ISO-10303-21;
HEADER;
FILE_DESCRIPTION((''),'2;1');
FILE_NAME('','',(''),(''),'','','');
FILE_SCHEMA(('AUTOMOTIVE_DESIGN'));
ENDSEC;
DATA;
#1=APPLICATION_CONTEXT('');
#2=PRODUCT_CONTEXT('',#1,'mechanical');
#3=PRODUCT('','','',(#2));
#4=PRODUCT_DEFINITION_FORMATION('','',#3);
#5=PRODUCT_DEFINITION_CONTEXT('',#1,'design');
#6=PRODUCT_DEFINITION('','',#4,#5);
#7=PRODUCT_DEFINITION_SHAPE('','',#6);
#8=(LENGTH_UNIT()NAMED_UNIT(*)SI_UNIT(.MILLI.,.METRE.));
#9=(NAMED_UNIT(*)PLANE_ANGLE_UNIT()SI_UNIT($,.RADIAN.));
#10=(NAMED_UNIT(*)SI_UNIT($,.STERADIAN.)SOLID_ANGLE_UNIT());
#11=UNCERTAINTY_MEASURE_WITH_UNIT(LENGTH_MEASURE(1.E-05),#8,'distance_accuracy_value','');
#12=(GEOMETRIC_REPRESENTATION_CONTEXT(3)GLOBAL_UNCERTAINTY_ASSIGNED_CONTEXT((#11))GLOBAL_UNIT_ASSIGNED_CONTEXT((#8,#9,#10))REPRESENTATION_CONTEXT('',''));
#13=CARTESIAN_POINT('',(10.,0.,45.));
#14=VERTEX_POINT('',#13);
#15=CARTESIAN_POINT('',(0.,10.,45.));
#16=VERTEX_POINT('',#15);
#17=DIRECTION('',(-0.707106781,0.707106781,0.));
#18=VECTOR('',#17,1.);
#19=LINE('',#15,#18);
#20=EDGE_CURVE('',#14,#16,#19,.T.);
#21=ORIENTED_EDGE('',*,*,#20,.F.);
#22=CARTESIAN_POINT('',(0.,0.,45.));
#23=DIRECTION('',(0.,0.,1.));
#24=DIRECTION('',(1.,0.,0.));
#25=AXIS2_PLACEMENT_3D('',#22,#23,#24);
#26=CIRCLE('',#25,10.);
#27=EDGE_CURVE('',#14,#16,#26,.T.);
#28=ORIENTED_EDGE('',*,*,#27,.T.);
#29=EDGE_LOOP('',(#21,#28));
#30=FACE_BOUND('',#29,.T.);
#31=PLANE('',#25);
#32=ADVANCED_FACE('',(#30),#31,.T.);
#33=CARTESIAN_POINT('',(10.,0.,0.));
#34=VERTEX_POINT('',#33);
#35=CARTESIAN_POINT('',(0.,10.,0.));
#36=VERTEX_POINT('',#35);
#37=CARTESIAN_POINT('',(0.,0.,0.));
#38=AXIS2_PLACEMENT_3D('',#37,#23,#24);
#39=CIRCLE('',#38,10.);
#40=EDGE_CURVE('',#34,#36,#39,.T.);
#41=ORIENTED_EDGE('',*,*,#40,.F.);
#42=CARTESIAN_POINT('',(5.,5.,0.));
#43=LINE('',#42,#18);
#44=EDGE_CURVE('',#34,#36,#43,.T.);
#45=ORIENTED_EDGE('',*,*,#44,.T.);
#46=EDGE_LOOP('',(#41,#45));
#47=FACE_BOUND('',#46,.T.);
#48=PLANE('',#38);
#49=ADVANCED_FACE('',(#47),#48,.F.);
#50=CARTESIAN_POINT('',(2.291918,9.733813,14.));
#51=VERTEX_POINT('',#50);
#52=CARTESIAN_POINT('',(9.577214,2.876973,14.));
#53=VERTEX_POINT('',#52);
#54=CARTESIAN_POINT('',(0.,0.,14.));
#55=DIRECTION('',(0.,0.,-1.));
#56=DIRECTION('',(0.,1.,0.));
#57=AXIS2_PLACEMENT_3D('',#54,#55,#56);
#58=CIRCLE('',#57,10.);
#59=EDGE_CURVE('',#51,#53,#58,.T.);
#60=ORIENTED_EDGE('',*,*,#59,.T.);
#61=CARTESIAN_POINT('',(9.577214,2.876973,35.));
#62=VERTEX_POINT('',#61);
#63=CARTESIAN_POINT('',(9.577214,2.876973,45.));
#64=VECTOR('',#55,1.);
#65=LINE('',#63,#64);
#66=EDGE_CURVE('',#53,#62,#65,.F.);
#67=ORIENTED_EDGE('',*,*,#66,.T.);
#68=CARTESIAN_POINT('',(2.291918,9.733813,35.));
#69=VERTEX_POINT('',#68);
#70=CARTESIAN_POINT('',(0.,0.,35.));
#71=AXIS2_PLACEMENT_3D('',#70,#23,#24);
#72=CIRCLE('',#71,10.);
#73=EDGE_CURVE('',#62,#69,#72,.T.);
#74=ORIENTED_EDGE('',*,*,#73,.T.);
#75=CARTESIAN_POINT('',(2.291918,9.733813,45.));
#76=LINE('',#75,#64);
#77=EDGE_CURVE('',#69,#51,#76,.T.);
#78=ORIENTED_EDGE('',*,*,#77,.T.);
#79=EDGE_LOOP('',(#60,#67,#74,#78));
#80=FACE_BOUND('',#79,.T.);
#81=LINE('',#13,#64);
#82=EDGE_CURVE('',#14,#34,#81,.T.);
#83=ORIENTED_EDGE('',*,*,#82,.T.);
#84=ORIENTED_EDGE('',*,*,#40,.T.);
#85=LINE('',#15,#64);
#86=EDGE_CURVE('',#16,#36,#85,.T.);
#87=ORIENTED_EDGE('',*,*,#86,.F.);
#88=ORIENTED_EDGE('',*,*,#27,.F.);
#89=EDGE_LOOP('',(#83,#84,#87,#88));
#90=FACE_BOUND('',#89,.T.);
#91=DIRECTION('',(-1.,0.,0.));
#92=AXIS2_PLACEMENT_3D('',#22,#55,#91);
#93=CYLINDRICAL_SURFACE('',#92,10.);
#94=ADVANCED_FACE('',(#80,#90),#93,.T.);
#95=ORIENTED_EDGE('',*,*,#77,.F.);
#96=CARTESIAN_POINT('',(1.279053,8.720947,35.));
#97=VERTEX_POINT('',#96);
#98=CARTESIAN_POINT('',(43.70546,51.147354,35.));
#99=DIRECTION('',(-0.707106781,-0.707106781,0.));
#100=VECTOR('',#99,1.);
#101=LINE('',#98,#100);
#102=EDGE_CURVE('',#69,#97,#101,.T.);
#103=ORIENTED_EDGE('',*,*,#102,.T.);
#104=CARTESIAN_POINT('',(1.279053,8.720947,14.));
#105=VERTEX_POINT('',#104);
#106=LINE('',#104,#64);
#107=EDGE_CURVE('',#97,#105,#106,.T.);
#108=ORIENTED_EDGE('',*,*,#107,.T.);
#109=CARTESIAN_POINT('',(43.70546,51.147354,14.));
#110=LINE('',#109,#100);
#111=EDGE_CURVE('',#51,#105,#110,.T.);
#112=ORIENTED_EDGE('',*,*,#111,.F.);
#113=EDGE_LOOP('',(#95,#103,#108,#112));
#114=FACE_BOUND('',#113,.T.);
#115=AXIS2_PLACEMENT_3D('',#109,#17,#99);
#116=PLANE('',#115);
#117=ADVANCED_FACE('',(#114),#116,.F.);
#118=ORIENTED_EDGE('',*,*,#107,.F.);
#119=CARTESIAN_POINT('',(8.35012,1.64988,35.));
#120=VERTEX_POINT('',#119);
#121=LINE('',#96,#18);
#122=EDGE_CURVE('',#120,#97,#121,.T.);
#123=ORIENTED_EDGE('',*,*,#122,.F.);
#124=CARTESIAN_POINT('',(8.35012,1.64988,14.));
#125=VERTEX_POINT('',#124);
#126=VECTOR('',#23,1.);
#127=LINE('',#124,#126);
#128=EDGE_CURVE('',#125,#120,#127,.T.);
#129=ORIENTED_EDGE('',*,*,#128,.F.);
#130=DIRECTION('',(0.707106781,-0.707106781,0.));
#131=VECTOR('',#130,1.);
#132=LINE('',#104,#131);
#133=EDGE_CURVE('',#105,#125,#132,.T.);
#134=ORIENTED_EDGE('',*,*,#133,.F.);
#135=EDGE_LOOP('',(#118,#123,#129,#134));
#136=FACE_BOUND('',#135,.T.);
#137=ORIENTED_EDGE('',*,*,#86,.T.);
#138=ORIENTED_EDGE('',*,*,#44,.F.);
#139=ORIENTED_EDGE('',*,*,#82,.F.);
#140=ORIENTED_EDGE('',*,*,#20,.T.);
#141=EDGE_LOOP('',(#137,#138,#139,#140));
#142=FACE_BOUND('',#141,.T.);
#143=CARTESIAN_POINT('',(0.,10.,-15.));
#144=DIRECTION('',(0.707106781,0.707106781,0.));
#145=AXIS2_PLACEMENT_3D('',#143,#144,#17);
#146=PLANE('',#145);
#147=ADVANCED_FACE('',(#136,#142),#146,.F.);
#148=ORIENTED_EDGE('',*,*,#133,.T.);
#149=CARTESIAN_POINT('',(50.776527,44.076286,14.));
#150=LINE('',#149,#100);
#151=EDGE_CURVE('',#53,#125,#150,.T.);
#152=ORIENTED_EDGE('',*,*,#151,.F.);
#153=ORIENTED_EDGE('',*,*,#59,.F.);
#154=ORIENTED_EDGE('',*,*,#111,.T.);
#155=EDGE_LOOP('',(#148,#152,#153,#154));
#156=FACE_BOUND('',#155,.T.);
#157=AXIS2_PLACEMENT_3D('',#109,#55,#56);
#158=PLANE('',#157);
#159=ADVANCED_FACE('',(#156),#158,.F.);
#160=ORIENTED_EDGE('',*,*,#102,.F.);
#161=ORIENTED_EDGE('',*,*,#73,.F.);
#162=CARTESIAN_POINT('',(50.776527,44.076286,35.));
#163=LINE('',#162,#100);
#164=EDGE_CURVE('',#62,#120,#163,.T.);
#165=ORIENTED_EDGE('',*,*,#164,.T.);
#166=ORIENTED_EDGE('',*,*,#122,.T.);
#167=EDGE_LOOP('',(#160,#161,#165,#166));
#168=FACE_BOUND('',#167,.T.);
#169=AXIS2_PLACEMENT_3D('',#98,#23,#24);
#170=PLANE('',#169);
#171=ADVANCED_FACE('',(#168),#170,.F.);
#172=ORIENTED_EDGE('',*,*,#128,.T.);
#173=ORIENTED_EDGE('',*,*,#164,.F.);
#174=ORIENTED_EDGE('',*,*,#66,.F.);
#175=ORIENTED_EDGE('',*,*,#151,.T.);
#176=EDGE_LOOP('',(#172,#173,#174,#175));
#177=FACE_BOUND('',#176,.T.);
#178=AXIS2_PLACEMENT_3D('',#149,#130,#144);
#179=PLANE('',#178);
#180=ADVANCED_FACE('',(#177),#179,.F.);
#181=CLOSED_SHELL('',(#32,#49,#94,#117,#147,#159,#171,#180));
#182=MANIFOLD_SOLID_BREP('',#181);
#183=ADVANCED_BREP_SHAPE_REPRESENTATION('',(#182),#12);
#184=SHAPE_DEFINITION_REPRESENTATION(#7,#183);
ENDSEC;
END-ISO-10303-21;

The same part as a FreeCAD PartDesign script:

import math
import FreeCAD as App
import Part
import Sketcher

V = App.Vector

doc = App.newDocument("Part")
params = doc.addObject("Spreadsheet::Sheet", "Params")
for row, (alias, value) in enumerate([
    ("sketch1_radius", "10 mm"),
    ("pad1_length", "45 mm"),
    ("sketch2_width", "10 mm"),
    ("pocket1_length", "60 mm"),
    ("sketch3_width", "21 mm"),
    ("sketch3_height", "10 mm"),
    ("pocket2_length", "60 mm"),
], start=1):
    params.set(f"A{row}", alias)
    params.set(f"B{row}", "=" + value)
    params.setAlias(f"B{row}", alias)

body = doc.addObject("PartDesign::Body", "Body")

# Sketch on XY plane
sketch1 = body.newObject("Sketcher::SketchObject", "Sketch")
sketch1.AttachmentSupport = (doc.getObject("XY_Plane"), [""])
sketch1.MapMode = "FlatFace"
sketch1.addGeometry([
    Part.LineSegment(V(0, 10, 0), V(0, 0, 0)),
    Part.LineSegment(V(0, 0, 0), V(10, 0, 0)),
    Part.ArcOfCircle(Part.Circle(V(0, 0, 0), V(0, 0, 1), 10), math.radians(0), math.radians(90)),
], False)
sketch1.addConstraint([
    Sketcher.Constraint("Coincident", 0, 2, 1, 1),
    Sketcher.Constraint("Coincident", 1, 2, 2, 1),
    Sketcher.Constraint("Coincident", 2, 2, 0, 1),
    Sketcher.Constraint("Vertical", 0),
    Sketcher.Constraint("Horizontal", 1),
    Sketcher.Constraint("Coincident", 2, 3, -1, 1),
    Sketcher.Constraint("Coincident", 0, 2, -1, 1),
    Sketcher.Constraint("Radius", 2, 10.0),
])
sketch1.setExpression("Constraints[7]", "Params.sketch1_radius")
pad1 = body.newObject("PartDesign::Pad", "Pad")
pad1.Profile = sketch1
pad1.setExpression("Length", "Params.pad1_length")

# Sketch on XY plane
sketch2 = body.newObject("Sketcher::SketchObject", "Sketch001")
sketch2.AttachmentSupport = (doc.getObject("XY_Plane"), [""])
sketch2.MapMode = "FlatFace"
sketch2.AttachmentOffset = App.Placement(V(0, 0, 45), App.Rotation())
sketch2.addGeometry([
    Part.LineSegment(V(10, 0, 0), V(0, 10, 0)),
    Part.LineSegment(V(0, 10, 0), V(0, 0, 0)),
    Part.LineSegment(V(0, 0, 0), V(10, 0, 0)),
], False)
sketch2.addConstraint([
    Sketcher.Constraint("Coincident", 0, 2, 1, 1),
    Sketcher.Constraint("Coincident", 1, 2, 2, 1),
    Sketcher.Constraint("Coincident", 2, 2, 0, 1),
    Sketcher.Constraint("Vertical", 1),
    Sketcher.Constraint("Horizontal", 2),
    Sketcher.Constraint("Coincident", 1, 2, -1, 1),
    Sketcher.Constraint("Equal", 2, 1),
    Sketcher.Constraint("DistanceX", 2, 1, 2, 2, 10.0),
])
sketch2.setExpression("Constraints[7]", "Params.sketch2_width")
pocket1 = body.newObject("PartDesign::Pocket", "Pocket")
pocket1.Profile = sketch2
pocket1.setExpression("Length", "Params.pocket1_length")

# Sketch on an angled plane
sketch3 = body.newObject("Sketcher::SketchObject", "Sketch002")
sketch3.Placement = App.Placement(V(5, 5, 0), App.Rotation(V(0, 0, 1), V(-0.707106781, 0.707106781, 0), V(-0.707106781, -0.707106781, 0), "ZXY"))
sketch3.addGeometry([
    Part.LineSegment(V(14, 5, 0), V(14, -5, 0)),
    Part.LineSegment(V(14, -5, 0), V(35, -5, 0)),
    Part.LineSegment(V(35, -5, 0), V(35, 5, 0)),
    Part.LineSegment(V(35, 5, 0), V(14, 5, 0)),
], False)
sketch3.addConstraint([
    Sketcher.Constraint("Coincident", 0, 2, 1, 1),
    Sketcher.Constraint("Coincident", 1, 2, 2, 1),
    Sketcher.Constraint("Coincident", 2, 2, 3, 1),
    Sketcher.Constraint("Coincident", 3, 2, 0, 1),
    Sketcher.Constraint("Vertical", 0),
    Sketcher.Constraint("Horizontal", 1),
    Sketcher.Constraint("Vertical", 2),
    Sketcher.Constraint("Horizontal", 3),
    Sketcher.Constraint("DistanceX", 1, 1, 1, 2, 21.0),
    Sketcher.Constraint("DistanceY", 0, 2, 0, 1, 10.0),
    Sketcher.Constraint("DistanceX", -1, 1, 0, 2, 14.0),
    Sketcher.Constraint("DistanceY", 0, 2, -1, 1, 4.737786),
])
sketch3.setExpression("Constraints[8]", "Params.sketch3_width")
sketch3.setExpression("Constraints[9]", "Params.sketch3_height")
pocket2 = body.newObject("PartDesign::Pocket", "Pocket001")
pocket2.Profile = sketch3
pocket2.setExpression("Length", "Params.pocket2_length")

doc.recompute()
